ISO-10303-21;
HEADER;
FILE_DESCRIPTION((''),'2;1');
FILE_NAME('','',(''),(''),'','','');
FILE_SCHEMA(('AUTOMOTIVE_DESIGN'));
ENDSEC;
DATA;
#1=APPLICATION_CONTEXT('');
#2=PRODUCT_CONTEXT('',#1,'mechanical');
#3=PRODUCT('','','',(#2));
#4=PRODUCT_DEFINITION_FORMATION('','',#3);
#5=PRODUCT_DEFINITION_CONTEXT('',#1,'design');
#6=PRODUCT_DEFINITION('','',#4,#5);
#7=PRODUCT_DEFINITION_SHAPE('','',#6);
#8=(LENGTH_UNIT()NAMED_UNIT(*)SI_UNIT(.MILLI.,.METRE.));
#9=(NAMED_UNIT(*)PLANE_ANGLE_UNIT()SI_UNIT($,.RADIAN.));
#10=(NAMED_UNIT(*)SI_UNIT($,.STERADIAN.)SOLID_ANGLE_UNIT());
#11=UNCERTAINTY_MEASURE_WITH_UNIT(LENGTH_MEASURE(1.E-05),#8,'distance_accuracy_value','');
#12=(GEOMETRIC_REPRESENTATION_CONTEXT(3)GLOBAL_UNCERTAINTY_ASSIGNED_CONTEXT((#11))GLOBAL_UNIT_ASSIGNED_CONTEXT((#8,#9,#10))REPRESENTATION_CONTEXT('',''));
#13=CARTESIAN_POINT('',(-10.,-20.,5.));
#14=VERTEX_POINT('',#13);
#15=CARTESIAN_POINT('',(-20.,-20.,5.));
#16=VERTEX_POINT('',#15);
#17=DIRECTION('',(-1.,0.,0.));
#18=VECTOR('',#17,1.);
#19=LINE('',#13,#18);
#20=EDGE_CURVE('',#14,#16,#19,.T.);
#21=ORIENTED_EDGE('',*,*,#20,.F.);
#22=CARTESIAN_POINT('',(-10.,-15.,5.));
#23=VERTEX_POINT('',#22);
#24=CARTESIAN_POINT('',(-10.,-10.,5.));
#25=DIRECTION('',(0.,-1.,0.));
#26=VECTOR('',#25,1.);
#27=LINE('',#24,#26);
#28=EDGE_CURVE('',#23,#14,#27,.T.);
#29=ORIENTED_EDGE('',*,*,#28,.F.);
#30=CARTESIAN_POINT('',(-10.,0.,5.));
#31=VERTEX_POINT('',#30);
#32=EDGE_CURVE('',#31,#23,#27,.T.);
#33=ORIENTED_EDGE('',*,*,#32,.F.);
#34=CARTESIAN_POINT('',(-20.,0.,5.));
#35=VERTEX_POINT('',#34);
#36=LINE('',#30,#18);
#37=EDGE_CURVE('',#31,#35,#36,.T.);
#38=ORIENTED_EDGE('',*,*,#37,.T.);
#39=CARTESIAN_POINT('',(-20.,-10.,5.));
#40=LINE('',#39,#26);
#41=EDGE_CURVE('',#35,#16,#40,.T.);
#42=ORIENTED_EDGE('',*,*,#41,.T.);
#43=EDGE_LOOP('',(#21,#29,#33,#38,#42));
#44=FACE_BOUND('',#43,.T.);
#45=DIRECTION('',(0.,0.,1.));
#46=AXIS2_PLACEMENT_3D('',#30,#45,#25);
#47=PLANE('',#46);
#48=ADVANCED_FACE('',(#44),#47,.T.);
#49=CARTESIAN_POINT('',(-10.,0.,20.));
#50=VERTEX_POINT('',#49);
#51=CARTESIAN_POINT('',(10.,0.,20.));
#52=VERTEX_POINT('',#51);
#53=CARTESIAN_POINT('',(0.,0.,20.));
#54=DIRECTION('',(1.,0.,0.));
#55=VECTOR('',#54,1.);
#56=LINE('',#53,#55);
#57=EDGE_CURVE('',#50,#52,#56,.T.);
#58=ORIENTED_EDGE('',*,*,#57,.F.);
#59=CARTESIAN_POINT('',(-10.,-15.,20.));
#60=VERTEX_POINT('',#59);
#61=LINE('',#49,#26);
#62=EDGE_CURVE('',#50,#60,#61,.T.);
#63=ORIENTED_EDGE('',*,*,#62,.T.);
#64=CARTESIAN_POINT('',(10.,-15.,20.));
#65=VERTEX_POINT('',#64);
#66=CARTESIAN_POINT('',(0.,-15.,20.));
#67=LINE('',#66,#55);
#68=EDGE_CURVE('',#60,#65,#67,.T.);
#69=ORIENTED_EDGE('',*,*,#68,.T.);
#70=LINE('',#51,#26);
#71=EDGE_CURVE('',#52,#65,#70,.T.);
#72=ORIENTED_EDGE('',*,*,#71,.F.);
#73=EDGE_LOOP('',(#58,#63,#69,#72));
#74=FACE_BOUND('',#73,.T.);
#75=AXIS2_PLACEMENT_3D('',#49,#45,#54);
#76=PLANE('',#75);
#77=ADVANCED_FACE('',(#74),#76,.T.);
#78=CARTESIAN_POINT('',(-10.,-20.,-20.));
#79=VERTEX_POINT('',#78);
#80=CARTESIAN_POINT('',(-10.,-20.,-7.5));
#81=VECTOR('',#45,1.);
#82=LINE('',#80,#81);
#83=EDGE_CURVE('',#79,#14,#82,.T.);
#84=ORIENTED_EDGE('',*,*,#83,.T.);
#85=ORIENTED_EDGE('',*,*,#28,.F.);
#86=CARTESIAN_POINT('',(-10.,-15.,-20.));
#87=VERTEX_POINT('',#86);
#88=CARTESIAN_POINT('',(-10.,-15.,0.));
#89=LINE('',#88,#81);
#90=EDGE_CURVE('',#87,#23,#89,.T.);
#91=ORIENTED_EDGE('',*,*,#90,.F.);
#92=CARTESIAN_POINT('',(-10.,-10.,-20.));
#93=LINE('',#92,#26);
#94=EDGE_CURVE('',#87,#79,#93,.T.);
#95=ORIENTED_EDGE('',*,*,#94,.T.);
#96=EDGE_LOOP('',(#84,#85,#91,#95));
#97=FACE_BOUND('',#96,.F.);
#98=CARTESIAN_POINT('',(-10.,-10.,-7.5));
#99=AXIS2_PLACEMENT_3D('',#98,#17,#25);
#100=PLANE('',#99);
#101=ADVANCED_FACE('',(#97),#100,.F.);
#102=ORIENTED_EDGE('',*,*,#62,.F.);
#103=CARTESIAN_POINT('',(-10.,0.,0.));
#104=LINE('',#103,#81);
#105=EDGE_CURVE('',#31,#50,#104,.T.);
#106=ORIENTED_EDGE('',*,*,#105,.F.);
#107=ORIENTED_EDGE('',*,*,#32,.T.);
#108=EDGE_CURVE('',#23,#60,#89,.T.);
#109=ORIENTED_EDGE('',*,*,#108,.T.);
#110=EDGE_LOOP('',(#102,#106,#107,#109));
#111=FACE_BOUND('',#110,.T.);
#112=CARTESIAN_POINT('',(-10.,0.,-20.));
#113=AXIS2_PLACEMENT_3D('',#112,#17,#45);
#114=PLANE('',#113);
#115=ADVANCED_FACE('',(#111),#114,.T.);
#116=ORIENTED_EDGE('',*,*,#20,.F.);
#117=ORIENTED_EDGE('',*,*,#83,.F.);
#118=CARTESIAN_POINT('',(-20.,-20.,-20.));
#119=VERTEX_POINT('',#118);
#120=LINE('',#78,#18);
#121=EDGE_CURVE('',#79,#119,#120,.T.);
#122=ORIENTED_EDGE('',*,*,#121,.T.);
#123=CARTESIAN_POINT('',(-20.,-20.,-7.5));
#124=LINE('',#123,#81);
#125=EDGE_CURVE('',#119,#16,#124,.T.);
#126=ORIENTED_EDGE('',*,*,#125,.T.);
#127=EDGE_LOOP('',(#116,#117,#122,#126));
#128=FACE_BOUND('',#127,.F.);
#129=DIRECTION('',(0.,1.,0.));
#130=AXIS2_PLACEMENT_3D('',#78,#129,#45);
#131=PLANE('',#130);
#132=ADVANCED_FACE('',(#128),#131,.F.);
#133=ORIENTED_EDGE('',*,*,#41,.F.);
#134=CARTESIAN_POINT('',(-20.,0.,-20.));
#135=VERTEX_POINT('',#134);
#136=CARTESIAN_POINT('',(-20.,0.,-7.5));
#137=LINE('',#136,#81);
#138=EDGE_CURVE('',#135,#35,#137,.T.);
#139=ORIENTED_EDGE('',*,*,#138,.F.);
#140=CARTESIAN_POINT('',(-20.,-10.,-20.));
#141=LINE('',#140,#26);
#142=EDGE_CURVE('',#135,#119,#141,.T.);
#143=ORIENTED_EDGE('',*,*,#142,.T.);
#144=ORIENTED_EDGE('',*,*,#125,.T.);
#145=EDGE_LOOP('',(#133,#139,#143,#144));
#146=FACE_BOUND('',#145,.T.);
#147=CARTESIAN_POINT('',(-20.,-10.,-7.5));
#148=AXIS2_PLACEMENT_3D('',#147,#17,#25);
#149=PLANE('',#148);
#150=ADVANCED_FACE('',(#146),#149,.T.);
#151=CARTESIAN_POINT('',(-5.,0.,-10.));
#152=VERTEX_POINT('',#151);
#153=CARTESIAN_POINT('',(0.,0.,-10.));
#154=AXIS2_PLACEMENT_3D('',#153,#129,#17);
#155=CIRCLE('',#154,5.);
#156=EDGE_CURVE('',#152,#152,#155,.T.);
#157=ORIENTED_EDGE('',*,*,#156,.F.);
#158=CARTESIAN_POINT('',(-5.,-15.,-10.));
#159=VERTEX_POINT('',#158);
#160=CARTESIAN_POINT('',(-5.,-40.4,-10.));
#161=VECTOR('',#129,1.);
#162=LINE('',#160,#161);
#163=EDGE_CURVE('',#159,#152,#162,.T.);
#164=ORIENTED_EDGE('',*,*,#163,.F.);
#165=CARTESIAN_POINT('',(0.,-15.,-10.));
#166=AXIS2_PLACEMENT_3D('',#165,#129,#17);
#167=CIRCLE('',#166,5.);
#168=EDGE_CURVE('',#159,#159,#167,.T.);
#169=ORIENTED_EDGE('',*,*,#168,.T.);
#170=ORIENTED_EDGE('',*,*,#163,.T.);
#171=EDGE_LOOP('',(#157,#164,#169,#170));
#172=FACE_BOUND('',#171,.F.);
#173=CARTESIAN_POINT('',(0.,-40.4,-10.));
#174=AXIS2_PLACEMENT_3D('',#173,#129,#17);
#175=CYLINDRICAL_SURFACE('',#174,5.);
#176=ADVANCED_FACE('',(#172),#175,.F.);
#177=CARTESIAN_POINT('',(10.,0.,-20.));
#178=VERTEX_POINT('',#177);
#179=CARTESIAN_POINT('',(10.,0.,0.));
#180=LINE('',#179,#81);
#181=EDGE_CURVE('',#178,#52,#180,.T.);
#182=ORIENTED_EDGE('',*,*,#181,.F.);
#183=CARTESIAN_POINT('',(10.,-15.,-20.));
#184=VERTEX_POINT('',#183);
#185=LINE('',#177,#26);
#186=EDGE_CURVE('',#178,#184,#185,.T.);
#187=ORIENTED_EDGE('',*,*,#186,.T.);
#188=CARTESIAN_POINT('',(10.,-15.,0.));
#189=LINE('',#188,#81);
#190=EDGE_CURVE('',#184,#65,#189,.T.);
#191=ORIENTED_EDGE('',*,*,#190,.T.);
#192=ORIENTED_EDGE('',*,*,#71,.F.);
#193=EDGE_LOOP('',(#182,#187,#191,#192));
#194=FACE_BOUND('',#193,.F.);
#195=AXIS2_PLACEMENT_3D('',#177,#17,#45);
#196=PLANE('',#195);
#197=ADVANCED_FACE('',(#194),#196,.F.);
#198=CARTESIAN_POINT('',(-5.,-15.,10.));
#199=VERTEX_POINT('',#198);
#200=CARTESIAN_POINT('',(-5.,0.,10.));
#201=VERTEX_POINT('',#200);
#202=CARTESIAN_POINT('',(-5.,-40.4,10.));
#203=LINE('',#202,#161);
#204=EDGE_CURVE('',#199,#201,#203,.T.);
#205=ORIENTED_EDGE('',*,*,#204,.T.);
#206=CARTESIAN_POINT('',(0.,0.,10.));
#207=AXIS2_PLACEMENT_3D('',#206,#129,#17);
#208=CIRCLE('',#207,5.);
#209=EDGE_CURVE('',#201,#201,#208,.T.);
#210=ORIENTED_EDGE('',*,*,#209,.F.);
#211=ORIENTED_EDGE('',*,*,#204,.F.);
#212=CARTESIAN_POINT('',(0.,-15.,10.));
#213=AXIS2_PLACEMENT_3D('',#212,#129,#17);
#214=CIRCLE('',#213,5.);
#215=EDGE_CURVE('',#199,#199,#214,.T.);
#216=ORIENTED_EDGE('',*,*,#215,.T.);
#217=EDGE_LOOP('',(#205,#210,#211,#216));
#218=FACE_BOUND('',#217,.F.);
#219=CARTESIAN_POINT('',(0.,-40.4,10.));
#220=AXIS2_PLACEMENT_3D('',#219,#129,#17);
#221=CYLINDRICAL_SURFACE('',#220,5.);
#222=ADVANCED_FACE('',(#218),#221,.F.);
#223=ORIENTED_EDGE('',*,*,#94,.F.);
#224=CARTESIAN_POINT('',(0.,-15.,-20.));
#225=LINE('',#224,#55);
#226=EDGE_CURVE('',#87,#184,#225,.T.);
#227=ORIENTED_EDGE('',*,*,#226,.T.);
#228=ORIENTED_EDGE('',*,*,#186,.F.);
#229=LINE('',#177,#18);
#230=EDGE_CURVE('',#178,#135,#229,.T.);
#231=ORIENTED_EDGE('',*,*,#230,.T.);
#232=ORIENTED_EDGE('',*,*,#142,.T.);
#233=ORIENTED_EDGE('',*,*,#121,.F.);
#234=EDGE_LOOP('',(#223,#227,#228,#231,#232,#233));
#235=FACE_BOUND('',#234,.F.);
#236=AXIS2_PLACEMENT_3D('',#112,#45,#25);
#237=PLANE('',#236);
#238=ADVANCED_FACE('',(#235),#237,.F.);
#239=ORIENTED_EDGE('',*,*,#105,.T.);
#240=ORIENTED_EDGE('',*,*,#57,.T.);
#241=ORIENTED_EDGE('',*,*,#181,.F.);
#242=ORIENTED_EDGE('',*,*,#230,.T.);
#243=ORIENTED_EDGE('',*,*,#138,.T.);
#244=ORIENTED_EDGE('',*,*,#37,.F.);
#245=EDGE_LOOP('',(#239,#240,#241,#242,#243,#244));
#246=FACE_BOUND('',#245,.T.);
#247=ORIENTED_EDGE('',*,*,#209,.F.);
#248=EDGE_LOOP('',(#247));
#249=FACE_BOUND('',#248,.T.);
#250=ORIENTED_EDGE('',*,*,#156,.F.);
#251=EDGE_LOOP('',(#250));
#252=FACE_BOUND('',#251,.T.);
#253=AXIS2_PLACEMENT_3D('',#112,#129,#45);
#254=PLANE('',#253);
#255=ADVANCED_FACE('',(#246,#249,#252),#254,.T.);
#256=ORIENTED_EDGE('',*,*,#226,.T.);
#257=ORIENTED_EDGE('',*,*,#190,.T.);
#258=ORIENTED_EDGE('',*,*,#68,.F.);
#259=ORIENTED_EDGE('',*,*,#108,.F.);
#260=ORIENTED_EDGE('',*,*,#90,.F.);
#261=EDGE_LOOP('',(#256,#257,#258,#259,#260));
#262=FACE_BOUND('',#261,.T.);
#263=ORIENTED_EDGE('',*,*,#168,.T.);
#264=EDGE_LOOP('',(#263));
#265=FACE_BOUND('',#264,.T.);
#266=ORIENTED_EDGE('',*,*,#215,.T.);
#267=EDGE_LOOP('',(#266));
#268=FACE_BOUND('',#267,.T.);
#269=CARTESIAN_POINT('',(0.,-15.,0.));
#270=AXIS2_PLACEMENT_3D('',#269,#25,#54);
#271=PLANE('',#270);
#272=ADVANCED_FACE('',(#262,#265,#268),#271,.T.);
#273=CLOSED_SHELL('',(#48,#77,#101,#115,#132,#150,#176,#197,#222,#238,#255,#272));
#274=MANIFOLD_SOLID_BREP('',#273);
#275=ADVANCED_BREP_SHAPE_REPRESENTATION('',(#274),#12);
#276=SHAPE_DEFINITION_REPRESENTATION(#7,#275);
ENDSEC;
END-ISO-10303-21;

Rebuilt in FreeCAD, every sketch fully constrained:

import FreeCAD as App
import Part
import Sketcher
from FreeCAD import Vector

doc = App.newDocument("Part")
body = doc.addObject("PartDesign::Body", "Body")

# Sketch on XZ plane
sketch1 = body.newObject("Sketcher::SketchObject", "Sketch")
sketch1.AttachmentSupport = (doc.getObject("XZ_Plane"), [""])
sketch1.MapMode = "FlatFace"
sketch1.addGeometry([
    Part.LineSegment(Vector(-10, 20, 0), Vector(-10, -20, 0)),
    Part.LineSegment(Vector(-10, -20, 0), Vector(10, -20, 0)),
    Part.LineSegment(Vector(10, -20, 0), Vector(10, 20, 0)),
    Part.LineSegment(Vector(10, 20, 0), Vector(-10, 20, 0)),
], False)
sketch1.addConstraint([
    Sketcher.Constraint("Coincident", 0, 2, 1, 1),
    Sketcher.Constraint("Coincident", 1, 2, 2, 1),
    Sketcher.Constraint("Coincident", 2, 2, 3, 1),
    Sketcher.Constraint("Coincident", 3, 2, 0, 1),
    Sketcher.Constraint("Vertical", 0),
    Sketcher.Constraint("Horizontal", 1),
    Sketcher.Constraint("Vertical", 2),
    Sketcher.Constraint("Horizontal", 3),
    Sketcher.Constraint("Symmetric", 0, 2, 2, 2, -1, 1),
    Sketcher.Constraint("DistanceX", 1, 1, 1, 2, 20.0),
    Sketcher.Constraint("DistanceY", 0, 2, 0, 1, 40.0),
])
pad1 = body.newObject("PartDesign::Pad", "Pad")
pad1.Profile = sketch1
pad1.Length = 15

# Sketch on XZ plane
sketch2 = body.newObject("Sketcher::SketchObject", "Sketch001")
sketch2.AttachmentSupport = (doc.getObject("XZ_Plane"), [""])
sketch2.MapMode = "FlatFace"
sketch2.AttachmentOffset = App.Placement(Vector(0, 0, 15), App.Rotation())
sketch2.addGeometry([
    Part.Circle(Vector(0, 10, 0), Vector(0, 0, 1), 5),
    Part.Circle(Vector(0, -10, 0), Vector(0, 0, 1), 5),
], False)
sketch2.addConstraint([
    Sketcher.Constraint("Equal", 0, 1),
    Sketcher.Constraint("Symmetric", 0, 3, 1, 3, -1, 1),
    Sketcher.Constraint("PointOnObject", 0, 3, -2),
    Sketcher.Constraint("Diameter", 0, 10.0),
    Sketcher.Constraint("DistanceY", -1, 1, 0, 3, 10.0),
])
doc.recompute()
hole = body.newObject("PartDesign::Hole", "Hole")
hole.Profile = sketch2
hole.ThreadType = "None"
hole.Diameter = 10
hole.DepthType = "Dimension"
hole.Depth = 25.4
hole.DrillPoint = "Flat"

# Sketch on YZ plane
sketch3 = body.newObject("Sketcher::SketchObject", "Sketch002")
sketch3.AttachmentSupport = (doc.getObject("YZ_Plane"), [""])
sketch3.MapMode = "FlatFace"
sketch3.AttachmentOffset = App.Placement(Vector(0, 0, -10), App.Rotation())
sketch3.addGeometry([
    Part.LineSegment(Vector(0, 5, 0), Vector(0, -20, 0)),
    Part.LineSegment(Vector(0, -20, 0), Vector(-20, -20, 0)),
    Part.LineSegment(Vector(-20, -20, 0), Vector(-20, 5, 0)),
    Part.LineSegment(Vector(-20, 5, 0), Vector(0, 5, 0)),
], False)
sketch3.addConstraint([
    Sketcher.Constraint("Coincident", 0, 2, 1, 1),
    Sketcher.Constraint("Coincident", 1, 2, 2, 1),
    Sketcher.Constraint("Coincident", 2, 2, 3, 1),
    Sketcher.Constraint("Coincident", 3, 2, 0, 1),
    Sketcher.Constraint("Vertical", 0),
    Sketcher.Constraint("Horizontal", 1),
    Sketcher.Constraint("Vertical", 2),
    Sketcher.Constraint("Horizontal", 3),
    Sketcher.Constraint("PointOnObject", 0, 2, -2),
    Sketcher.Constraint("DistanceX", 1, 2, 1, 1, 20.0),
    Sketcher.Constraint("DistanceY", 0, 2, 0, 1, 25.0),
    Sketcher.Constraint("DistanceY", 0, 2, -1, 1, 20.0),
])
pad2 = body.newObject("PartDesign::Pad", "Pad001")
pad2.Profile = sketch3
pad2.Length = 10
pad2.Reversed = True

doc.recompute()
